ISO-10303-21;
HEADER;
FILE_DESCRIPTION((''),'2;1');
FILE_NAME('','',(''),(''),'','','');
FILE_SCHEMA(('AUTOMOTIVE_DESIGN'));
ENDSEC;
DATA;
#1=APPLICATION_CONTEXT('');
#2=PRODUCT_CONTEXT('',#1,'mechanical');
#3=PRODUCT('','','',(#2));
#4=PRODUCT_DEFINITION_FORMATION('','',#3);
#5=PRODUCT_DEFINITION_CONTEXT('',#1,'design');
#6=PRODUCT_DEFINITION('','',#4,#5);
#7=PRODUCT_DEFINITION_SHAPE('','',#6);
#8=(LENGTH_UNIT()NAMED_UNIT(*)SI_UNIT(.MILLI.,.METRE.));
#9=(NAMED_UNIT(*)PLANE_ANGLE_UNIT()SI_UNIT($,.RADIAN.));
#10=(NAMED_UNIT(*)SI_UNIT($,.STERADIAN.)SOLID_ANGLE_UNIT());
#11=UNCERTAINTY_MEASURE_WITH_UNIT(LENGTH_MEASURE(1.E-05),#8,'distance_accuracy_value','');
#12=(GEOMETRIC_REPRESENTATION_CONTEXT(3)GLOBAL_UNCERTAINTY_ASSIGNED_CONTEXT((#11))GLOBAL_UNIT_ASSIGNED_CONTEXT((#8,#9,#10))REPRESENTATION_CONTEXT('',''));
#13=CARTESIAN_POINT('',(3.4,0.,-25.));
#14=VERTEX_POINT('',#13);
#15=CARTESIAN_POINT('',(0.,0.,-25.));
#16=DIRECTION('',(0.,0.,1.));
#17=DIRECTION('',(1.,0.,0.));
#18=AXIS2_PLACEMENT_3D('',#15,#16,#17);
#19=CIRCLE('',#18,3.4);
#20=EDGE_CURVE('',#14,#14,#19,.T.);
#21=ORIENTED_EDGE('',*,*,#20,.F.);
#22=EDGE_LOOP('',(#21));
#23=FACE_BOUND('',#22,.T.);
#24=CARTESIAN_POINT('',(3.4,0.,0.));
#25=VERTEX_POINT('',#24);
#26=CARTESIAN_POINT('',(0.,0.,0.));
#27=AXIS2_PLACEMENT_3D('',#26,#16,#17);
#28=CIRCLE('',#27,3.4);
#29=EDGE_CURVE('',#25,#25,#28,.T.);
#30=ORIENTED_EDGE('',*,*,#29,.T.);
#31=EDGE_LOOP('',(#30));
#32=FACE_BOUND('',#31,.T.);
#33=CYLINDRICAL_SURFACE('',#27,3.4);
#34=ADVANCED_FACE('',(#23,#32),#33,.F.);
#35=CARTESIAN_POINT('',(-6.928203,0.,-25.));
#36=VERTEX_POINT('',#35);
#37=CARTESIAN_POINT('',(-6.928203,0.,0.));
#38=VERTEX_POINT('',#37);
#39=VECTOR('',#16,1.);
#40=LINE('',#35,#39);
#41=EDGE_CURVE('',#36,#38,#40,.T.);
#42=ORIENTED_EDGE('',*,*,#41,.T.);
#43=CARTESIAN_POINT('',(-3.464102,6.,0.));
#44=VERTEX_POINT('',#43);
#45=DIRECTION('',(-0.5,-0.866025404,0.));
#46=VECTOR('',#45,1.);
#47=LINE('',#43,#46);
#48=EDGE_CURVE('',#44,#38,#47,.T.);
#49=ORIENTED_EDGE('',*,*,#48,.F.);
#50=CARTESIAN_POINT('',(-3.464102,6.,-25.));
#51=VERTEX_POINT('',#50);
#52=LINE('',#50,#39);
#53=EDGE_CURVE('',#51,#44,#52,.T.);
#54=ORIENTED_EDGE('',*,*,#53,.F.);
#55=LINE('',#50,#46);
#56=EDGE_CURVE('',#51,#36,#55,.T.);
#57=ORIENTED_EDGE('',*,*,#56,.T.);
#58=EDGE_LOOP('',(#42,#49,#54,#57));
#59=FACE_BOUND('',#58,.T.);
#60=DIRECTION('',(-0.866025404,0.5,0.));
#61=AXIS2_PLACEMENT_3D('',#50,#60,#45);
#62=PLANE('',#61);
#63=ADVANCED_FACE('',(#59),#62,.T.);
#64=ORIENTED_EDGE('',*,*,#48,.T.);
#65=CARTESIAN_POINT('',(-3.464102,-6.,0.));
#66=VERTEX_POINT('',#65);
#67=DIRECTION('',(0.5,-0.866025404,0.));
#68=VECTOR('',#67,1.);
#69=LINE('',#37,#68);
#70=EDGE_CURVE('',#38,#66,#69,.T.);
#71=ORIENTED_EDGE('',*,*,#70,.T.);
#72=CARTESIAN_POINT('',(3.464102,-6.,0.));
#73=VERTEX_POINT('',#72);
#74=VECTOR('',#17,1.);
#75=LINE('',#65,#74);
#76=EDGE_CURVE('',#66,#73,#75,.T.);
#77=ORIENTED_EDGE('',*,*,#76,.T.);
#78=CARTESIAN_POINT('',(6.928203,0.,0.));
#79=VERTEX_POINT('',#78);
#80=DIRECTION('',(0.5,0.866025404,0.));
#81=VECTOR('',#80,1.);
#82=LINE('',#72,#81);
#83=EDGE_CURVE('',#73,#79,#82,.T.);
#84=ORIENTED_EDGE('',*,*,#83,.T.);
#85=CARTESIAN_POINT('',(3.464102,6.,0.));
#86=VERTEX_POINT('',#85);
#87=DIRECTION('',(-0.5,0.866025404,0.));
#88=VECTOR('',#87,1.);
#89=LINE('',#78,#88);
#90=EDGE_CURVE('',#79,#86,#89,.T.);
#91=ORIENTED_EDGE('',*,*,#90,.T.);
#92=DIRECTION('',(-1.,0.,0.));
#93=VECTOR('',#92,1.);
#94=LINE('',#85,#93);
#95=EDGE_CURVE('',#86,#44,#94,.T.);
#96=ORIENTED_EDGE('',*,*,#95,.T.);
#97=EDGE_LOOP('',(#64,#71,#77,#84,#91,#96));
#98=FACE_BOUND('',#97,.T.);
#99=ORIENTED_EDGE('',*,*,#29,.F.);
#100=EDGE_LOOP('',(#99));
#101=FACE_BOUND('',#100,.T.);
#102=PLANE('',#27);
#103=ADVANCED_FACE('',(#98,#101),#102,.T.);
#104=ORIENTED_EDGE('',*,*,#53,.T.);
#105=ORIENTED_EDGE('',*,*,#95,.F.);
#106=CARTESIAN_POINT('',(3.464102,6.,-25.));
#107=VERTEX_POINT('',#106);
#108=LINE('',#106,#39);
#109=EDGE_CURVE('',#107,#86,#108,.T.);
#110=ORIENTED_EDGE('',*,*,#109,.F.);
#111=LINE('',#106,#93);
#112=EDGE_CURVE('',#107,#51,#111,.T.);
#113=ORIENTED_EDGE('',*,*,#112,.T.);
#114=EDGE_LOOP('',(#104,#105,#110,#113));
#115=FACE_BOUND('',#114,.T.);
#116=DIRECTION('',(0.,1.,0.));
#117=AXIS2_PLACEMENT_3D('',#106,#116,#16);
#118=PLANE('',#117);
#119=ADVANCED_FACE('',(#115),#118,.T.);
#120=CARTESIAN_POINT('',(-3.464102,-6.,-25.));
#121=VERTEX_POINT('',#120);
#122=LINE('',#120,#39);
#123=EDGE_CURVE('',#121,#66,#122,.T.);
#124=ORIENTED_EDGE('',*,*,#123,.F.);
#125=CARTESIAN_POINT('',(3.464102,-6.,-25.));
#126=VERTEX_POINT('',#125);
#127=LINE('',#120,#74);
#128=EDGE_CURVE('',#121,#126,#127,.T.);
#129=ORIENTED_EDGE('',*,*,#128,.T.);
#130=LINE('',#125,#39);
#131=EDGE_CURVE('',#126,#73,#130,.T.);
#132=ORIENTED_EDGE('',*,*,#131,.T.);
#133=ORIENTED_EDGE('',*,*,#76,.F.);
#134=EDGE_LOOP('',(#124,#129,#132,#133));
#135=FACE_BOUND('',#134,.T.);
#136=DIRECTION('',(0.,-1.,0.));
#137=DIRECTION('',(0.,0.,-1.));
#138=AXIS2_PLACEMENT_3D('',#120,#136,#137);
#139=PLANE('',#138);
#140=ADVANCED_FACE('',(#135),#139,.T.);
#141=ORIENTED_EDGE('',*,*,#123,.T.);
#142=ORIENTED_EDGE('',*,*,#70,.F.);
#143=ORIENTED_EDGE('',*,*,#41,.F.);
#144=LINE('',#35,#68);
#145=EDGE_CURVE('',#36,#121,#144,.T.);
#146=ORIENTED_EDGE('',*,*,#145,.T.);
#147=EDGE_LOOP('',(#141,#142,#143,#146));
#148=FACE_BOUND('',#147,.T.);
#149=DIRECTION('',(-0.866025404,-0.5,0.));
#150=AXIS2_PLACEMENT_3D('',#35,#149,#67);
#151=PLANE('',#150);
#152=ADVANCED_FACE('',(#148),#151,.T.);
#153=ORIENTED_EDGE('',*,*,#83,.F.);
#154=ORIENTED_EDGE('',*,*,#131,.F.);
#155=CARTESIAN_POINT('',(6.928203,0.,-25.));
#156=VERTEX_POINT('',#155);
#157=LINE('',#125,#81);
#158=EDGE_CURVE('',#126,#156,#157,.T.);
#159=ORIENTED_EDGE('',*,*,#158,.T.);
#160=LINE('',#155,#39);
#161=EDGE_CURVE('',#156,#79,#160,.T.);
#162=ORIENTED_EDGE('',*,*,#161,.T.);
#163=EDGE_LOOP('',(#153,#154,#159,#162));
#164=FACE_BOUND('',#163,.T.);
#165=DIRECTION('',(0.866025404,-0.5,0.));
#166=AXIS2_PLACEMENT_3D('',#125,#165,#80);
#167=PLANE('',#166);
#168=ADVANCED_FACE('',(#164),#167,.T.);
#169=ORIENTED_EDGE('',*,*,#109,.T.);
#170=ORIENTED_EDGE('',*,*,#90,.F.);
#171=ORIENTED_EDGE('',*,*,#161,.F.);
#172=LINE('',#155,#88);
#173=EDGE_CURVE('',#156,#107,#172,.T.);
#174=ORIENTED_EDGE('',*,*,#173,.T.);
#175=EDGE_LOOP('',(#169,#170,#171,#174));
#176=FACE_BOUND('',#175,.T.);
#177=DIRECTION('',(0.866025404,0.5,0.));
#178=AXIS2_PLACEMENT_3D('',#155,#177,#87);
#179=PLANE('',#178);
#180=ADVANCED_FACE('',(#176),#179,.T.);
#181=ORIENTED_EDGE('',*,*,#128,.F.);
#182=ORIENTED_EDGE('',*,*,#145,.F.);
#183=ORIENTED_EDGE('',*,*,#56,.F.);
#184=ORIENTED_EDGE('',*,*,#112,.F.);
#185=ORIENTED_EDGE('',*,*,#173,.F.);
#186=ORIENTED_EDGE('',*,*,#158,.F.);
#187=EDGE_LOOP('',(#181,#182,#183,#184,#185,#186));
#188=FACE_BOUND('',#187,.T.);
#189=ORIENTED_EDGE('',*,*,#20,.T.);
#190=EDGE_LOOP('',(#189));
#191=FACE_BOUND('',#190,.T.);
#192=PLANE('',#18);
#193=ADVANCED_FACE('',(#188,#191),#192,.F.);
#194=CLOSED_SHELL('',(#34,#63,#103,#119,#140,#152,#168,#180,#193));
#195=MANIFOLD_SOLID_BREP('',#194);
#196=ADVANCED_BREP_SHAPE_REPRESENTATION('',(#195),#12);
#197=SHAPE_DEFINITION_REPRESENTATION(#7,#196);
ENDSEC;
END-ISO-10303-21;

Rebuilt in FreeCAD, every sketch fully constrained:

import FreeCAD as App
import Part
import Sketcher
Q = App.Units.Quantity


def add_polygon(sketch, points):
    """Adds a closed chain of lines whose ends are joined by coincident constraints."""
    first, n = sketch.GeometryCount, len(points)
    for a, b in zip(points, points[1:] + points[:1]):
        sketch.addGeometry(Part.LineSegment(App.Vector(*a, 0), App.Vector(*b, 0)), False)
    for i in range(n):
        sketch.addConstraint(Sketcher.Constraint("Coincident", first + i, 2, first + (i + 1) % n, 1))

doc = App.newDocument("Part")
params = doc.addObject("Spreadsheet::Sheet", "Params")
for row, (alias, value) in enumerate([
    ("pad1_length", "25 mm"),
    ("sketch2_diameter", "6.8 mm"),
    ("hole_diameter", "6.8 mm"),
], start=1):
    params.set(f"A{row}", alias)
    params.set(f"B{row}", "=" + value)
    params.setAlias(f"B{row}", alias)

body = doc.addObject("PartDesign::Body", "Body")

sketch1 = body.newObject("Sketcher::SketchObject", "Sketch")
sketch1.AttachmentSupport = (doc.getObject("XY_Plane"), [""])
sketch1.MapMode = "FlatFace"
add_polygon(sketch1, [(7, 0), (3, 6), (-3, 6), (-7, 0), (-3, -6), (3, -6)])
sketch1.addConstraint([
    Sketcher.Constraint("Horizontal", 1),
    Sketcher.Constraint("Horizontal", 4),
    Sketcher.Constraint("Symmetric", 0, 2, 3, 2, -1, 1),
    Sketcher.Constraint("Symmetric", 2, 2, 5, 2, -1, 1),
    Sketcher.Constraint("PointOnObject", 2, 2, -1),
    Sketcher.Constraint("Parallel", 2, 5),
    Sketcher.Constraint("Vertical", 1, 2, 3, 2),
    Sketcher.Constraint("Angle", 0, Q("120 deg")),
    Sketcher.Constraint("DistanceY", -1, 1, 0, 2, 6.0),
    Sketcher.Constraint("DistanceX", -1, 1, 0, 2, 3.464102),
])
pad1 = body.newObject("PartDesign::Pad", "Pad")
pad1.Profile = sketch1
pad1.setExpression("Length", "Params.pad1_length")
pad1.Reversed = True

sketch2 = body.newObject("Sketcher::SketchObject", "Sketch001")
sketch2.AttachmentSupport = (doc.getObject("XY_Plane"), [""])
sketch2.MapMode = "FlatFace"
sketch2.addGeometry(Part.Circle(App.Vector(0, 0, 0), App.Vector(0, 0, 1), 3.4), False)
sketch2.addConstraint([
    Sketcher.Constraint("Coincident", 0, 3, -1, 1),
    Sketcher.Constraint("Diameter", 0, 6.8),
])
sketch2.setExpression("Constraints[1]", "Params.sketch2_diameter")
doc.recompute()
hole = body.newObject("PartDesign::Hole", "Hole")
hole.Profile = sketch2
hole.ThreadType = "None"
hole.setExpression("Diameter", "Params.hole_diameter")
hole.DepthType = "ThroughAll"

doc.recompute()
